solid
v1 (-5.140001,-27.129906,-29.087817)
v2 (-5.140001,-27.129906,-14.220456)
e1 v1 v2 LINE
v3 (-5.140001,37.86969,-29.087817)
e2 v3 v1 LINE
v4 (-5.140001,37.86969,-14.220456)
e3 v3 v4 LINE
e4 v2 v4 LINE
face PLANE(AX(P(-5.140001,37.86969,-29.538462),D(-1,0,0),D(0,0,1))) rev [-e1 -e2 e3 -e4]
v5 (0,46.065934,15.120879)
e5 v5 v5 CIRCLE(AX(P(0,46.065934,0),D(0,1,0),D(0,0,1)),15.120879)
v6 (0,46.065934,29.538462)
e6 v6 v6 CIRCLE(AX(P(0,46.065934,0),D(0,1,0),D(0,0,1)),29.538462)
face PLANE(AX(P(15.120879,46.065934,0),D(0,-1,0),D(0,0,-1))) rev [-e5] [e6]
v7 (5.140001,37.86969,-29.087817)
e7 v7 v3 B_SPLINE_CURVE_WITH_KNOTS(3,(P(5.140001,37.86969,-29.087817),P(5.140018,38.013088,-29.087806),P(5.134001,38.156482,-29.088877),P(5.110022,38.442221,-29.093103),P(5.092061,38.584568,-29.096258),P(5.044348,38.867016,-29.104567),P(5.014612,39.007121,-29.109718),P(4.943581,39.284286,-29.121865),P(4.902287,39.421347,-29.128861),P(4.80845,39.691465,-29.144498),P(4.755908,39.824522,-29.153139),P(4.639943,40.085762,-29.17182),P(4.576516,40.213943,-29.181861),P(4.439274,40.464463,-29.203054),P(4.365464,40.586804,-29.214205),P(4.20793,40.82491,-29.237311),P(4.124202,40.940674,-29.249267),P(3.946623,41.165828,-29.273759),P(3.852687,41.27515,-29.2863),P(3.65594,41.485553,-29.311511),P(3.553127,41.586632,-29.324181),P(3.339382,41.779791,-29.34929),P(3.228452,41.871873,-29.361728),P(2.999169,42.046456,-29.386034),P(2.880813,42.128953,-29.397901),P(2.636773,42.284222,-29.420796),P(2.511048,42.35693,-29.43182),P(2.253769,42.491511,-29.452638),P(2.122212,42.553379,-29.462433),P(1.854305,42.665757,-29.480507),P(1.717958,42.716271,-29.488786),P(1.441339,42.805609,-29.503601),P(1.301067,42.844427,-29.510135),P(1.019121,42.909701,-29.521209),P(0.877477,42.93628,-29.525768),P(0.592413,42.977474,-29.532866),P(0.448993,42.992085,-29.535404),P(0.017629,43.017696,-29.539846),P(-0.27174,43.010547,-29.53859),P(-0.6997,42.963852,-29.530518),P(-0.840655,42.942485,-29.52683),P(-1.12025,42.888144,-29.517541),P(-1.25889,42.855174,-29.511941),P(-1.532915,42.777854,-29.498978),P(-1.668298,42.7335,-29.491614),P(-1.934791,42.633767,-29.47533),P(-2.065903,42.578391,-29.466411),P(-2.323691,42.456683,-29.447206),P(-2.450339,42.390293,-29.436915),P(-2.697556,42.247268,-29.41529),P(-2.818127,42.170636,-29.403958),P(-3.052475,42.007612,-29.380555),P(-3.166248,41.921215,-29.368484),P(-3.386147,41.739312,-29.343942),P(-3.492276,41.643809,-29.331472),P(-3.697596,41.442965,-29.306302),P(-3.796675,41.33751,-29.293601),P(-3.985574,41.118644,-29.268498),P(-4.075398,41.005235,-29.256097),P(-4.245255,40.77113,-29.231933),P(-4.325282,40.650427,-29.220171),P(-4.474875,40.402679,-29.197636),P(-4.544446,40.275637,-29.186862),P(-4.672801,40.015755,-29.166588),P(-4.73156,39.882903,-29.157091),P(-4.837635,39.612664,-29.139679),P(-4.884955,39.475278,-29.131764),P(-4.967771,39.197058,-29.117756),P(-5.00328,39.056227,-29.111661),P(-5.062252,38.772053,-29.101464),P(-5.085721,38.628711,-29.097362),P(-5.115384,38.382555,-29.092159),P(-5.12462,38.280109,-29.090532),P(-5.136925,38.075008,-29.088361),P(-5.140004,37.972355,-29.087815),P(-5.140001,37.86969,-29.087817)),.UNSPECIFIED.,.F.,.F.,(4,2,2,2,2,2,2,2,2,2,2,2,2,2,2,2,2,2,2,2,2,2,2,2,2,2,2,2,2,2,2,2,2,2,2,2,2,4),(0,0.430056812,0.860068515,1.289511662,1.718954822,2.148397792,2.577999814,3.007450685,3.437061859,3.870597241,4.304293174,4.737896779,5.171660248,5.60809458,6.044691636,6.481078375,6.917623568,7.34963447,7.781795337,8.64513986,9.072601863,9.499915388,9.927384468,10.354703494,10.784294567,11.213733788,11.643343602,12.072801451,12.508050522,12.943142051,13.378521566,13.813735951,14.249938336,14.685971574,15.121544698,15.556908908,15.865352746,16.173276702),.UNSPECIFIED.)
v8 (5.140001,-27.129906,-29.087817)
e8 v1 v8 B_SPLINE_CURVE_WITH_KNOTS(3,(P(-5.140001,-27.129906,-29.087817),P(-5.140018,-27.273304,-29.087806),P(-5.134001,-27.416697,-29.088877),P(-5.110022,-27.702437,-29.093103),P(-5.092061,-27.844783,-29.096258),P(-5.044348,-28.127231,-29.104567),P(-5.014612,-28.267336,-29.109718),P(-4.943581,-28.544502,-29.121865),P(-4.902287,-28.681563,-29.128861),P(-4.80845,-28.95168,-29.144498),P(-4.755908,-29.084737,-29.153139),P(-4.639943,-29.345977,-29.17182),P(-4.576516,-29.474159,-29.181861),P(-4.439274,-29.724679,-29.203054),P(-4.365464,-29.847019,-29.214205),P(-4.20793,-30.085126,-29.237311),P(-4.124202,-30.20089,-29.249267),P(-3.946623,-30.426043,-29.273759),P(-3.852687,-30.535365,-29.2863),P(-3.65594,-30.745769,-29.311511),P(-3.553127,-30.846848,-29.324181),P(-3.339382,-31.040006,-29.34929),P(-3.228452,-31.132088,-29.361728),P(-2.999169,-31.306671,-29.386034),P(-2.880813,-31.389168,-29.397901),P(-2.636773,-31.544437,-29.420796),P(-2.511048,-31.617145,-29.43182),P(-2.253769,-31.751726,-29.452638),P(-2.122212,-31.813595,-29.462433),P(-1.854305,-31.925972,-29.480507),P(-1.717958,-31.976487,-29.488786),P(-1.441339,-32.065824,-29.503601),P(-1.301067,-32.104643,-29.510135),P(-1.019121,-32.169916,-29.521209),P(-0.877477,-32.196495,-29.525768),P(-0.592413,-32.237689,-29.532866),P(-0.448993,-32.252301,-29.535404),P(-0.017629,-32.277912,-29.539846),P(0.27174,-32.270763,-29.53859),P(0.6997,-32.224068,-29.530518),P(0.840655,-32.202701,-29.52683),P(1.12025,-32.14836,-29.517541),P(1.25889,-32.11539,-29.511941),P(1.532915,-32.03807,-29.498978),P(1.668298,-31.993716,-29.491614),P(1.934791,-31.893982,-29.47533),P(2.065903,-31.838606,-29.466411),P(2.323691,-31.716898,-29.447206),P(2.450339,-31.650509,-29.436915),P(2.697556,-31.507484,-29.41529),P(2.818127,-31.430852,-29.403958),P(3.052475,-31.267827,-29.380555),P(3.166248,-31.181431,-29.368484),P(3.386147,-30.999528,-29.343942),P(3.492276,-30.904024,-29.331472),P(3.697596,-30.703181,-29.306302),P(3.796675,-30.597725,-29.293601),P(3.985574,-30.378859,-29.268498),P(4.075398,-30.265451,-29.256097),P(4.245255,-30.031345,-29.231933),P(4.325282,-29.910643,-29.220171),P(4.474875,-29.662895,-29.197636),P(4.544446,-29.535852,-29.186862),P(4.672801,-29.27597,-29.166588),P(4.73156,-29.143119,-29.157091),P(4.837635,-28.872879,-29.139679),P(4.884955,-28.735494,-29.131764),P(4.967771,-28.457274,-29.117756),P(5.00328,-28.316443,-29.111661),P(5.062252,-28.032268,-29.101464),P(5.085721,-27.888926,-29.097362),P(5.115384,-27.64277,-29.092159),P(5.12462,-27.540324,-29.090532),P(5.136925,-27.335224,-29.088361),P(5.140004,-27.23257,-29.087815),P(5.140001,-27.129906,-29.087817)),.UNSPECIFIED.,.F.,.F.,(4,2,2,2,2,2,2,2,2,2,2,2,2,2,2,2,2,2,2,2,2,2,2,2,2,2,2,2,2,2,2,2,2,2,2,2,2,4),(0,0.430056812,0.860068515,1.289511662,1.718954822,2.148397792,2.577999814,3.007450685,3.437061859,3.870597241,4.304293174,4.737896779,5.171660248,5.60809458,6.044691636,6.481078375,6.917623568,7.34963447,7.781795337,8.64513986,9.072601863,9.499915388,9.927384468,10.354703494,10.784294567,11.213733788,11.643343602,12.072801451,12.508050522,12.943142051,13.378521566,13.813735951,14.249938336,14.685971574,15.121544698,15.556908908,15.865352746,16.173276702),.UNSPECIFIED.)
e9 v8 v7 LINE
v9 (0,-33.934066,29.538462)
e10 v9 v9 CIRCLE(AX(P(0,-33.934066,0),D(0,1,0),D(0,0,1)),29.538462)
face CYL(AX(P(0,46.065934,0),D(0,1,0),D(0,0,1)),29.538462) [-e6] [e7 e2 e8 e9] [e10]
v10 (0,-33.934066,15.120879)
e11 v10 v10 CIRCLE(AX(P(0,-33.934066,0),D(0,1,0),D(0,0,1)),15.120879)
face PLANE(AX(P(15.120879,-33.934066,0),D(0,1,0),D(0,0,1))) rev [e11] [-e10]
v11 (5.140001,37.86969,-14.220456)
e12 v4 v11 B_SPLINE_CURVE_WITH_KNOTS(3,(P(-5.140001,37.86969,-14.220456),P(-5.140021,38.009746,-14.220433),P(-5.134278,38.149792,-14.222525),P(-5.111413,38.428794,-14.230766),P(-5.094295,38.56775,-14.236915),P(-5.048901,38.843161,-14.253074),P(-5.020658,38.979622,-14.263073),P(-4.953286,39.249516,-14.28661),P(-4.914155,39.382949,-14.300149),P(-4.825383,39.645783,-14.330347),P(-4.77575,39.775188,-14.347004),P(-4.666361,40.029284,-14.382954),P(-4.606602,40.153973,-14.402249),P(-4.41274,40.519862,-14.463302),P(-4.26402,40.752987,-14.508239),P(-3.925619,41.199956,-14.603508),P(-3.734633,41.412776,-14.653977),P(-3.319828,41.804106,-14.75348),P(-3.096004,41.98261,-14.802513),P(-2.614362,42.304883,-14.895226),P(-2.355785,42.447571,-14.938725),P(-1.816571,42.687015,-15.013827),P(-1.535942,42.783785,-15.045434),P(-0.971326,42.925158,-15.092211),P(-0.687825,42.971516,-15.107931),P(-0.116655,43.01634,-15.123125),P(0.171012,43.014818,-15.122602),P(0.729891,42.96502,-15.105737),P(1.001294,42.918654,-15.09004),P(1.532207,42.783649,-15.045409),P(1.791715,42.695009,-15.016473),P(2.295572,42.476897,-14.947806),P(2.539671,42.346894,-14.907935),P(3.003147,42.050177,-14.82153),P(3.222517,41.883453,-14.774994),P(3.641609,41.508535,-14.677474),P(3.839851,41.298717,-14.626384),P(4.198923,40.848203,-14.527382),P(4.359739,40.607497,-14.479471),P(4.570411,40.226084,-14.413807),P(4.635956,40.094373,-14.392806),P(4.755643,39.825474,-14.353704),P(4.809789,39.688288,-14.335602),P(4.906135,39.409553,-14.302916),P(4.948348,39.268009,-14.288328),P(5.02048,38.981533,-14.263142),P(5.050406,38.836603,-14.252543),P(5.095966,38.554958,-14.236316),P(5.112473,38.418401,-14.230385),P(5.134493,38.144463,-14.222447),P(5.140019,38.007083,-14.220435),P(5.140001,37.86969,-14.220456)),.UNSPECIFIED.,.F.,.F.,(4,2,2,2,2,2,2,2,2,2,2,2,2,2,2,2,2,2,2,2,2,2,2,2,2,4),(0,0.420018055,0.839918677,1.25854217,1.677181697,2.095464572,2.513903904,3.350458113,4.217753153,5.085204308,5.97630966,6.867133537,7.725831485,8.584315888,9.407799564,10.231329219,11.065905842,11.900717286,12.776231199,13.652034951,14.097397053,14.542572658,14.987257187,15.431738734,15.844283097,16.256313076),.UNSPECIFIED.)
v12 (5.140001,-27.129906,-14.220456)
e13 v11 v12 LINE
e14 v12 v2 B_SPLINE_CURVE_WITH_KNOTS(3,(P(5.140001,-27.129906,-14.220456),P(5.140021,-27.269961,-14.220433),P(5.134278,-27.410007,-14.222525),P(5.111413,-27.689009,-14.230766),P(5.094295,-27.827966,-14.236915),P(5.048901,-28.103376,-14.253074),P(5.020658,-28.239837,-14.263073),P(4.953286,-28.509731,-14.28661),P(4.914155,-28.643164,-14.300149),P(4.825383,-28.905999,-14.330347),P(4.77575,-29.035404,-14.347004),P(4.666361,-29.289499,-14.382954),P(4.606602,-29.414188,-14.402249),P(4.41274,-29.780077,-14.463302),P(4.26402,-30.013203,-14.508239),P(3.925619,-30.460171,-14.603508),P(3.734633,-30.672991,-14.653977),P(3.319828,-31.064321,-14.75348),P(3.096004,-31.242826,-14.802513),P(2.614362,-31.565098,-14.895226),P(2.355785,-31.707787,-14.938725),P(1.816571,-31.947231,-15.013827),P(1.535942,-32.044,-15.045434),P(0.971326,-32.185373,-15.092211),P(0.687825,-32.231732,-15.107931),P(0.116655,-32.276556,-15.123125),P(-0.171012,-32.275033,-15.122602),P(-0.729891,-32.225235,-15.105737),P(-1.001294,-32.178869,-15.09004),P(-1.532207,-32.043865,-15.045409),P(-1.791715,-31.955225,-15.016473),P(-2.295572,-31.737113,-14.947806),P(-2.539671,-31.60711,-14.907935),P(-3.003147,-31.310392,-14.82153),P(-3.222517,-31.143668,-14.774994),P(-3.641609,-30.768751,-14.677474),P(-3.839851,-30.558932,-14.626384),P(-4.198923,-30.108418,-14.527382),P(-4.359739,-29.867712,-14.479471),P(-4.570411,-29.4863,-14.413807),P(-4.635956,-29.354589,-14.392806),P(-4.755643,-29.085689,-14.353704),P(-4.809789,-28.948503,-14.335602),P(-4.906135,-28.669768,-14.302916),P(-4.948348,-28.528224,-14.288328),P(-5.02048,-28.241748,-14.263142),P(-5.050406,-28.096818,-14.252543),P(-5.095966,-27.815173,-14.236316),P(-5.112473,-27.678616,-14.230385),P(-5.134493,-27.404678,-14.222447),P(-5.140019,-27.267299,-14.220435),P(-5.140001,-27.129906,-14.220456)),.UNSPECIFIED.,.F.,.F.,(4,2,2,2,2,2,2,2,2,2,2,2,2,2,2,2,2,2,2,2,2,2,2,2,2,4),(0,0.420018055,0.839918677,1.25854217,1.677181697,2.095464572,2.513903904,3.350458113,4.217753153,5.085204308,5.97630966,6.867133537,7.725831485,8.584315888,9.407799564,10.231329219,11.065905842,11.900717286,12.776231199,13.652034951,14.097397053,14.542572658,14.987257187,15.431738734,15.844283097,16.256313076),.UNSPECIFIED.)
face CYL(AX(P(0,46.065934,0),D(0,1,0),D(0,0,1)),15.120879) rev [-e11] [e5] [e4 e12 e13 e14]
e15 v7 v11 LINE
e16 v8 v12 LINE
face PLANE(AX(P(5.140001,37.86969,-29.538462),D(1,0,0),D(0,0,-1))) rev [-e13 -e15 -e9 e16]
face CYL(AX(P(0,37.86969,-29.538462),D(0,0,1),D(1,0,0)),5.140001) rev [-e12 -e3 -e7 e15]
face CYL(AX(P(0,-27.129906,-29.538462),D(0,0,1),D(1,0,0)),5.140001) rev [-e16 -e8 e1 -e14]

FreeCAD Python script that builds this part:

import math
import FreeCAD as App
import Part
import Sketcher


def add_polygon(sketch, points):
    """Adds a closed chain of lines whose ends are joined by coincident constraints."""
    first, n = sketch.GeometryCount, len(points)
    for a, b in zip(points, points[1:] + points[:1]):
        sketch.addGeometry(Part.LineSegment(App.Vector(*a, 0), App.Vector(*b, 0)), False)
    for i in range(n):
        sketch.addConstraint(Sketcher.Constraint("Coincident", first + i, 2, first + (i + 1) % n, 1))

doc = App.newDocument("Part")
body = doc.addObject("PartDesign::Body", "Body")

sketch1 = body.newObject("Sketcher::SketchObject", "Sketch")
sketch1.AttachmentSupport = (doc.getObject("XY_Plane"), [""])
sketch1.MapMode = "FlatFace"
add_polygon(sketch1, [(15, 46), (15, -34), (30, -34), (30, 46)])
sketch1.addConstraint([
    Sketcher.Constraint("Vertical", 0),
    Sketcher.Constraint("Horizontal", 1),
    Sketcher.Constraint("Vertical", 2),
    Sketcher.Constraint("Horizontal", 3),
    Sketcher.Constraint("DistanceY", 0, 2, 0, 1, 80.0),
    Sketcher.Constraint("DistanceX", 1, 1, 1, 2, 14.417582),
    Sketcher.Constraint("DistanceX", -1, 1, 0, 2, 15.120879),
    Sketcher.Constraint("DistanceY", 0, 2, -1, 1, 33.934066),
])
revolution = body.newObject("PartDesign::Revolution", "Revolution")
revolution.Profile = sketch1
revolution.ReferenceAxis = (sketch1, ["V_Axis"])
revolution.Angle = 360

sketch2 = body.newObject("Sketcher::SketchObject", "Sketch001")
sketch2.AttachmentSupport = (doc.getObject("XY_Plane"), [""])
sketch2.MapMode = "FlatFace"
sketch2.addGeometry([
    Part.LineSegment(App.Vector(5, -27, 0), App.Vector(5, 38, 0)),
    Part.ArcOfCircle(Part.Circle(App.Vector(0, 38, 0), App.Vector(0, 0, 1), 5), math.radians(0), math.radians(180)),
    Part.LineSegment(App.Vector(-5, 38, 0), App.Vector(-5, -27, 0)),
    Part.ArcOfCircle(Part.Circle(App.Vector(0, -27, 0), App.Vector(0, 0, 1), 5), math.radians(180), math.radians(360)),
], False)
sketch2.addConstraint([
    Sketcher.Constraint("Tangent", 0, 2, 1, 1),
    Sketcher.Constraint("Tangent", 1, 2, 2, 1),
    Sketcher.Constraint("Tangent", 2, 2, 3, 1),
    Sketcher.Constraint("Tangent", 3, 2, 0, 1),
    Sketcher.Constraint("Vertical", 0),
    Sketcher.Constraint("Vertical", 2),
    Sketcher.Constraint("PointOnObject", 1, 3, -2),
    Sketcher.Constraint("Radius", 1, 5.140001),
    Sketcher.Constraint("DistanceY", 0, 1, 0, 2, 64.999596),
    Sketcher.Constraint("DistanceY", -1, 1, 1, 3, 37.86969),
])
pocket1 = body.newObject("PartDesign::Pocket", "Pocket")
pocket1.Profile = sketch2
pocket1.Type = "ThroughAll"

doc.recompute()
